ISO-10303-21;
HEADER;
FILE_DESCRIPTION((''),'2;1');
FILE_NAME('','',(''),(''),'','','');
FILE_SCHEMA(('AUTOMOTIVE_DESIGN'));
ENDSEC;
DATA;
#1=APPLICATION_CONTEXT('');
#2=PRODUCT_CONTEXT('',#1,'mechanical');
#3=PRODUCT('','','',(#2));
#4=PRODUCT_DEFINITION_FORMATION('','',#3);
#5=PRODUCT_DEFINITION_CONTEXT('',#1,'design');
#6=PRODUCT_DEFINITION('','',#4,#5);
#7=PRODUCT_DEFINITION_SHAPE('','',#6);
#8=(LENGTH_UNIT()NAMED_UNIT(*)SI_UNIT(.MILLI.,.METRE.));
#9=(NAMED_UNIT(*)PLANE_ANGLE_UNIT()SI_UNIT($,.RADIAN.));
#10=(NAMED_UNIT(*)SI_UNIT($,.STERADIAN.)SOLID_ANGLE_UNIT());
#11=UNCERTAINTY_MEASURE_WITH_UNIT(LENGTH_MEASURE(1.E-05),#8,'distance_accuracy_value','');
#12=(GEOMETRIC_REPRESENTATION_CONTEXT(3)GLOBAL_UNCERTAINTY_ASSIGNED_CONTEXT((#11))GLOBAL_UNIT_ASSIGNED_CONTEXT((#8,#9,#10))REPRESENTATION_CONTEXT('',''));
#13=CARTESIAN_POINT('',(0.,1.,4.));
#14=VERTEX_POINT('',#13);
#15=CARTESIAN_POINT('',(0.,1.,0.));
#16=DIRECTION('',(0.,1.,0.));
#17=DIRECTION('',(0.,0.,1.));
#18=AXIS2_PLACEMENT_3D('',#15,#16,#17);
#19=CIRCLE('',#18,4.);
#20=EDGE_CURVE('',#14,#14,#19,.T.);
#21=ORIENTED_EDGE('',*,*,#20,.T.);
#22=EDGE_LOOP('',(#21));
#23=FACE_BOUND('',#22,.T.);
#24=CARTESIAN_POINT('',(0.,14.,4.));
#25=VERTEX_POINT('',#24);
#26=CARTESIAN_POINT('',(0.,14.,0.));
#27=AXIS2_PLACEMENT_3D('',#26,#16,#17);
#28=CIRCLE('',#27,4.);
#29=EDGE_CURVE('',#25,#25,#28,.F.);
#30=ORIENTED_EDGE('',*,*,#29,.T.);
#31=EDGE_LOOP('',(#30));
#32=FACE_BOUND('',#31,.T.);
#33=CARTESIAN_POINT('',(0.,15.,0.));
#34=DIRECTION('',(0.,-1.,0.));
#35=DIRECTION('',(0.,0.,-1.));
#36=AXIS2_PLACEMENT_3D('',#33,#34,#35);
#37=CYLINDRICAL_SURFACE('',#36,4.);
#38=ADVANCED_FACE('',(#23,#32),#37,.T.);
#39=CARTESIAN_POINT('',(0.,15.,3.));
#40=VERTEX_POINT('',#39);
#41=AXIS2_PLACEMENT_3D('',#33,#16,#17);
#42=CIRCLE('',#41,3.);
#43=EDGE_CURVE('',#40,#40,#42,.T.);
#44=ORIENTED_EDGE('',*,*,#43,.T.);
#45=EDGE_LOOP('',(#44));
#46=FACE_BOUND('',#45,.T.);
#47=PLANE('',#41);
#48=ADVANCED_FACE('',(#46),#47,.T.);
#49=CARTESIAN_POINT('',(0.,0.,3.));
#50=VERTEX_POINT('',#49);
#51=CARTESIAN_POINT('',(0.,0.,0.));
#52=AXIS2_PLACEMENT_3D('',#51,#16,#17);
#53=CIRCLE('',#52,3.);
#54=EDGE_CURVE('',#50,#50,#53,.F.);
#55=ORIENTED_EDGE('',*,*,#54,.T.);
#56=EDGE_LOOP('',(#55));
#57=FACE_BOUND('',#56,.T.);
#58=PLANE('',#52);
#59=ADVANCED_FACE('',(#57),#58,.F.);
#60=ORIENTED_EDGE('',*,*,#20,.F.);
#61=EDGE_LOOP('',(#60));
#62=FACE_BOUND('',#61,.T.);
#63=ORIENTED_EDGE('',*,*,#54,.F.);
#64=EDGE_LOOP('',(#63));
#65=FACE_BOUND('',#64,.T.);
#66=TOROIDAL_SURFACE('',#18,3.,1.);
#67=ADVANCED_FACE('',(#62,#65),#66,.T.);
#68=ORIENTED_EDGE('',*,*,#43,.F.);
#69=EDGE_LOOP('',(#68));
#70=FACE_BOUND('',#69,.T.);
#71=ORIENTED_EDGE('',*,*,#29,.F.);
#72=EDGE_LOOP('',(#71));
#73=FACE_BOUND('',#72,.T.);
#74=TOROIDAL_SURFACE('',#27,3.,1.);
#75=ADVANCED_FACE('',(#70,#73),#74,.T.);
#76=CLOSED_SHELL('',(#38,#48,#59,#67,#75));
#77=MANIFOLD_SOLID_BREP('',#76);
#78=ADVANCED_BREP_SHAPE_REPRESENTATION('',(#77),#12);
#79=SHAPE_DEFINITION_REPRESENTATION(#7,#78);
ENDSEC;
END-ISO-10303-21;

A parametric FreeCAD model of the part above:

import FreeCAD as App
import Part
import Sketcher
Q = App.Units.Quantity


def edges_at(feature, points):
    """Names of the edges that pass closest to the given points."""
    edges = feature.Shape.Edges
    near = lambda p: min(range(len(edges)), key=lambda i: edges[i].distToShape(Part.Vertex(*p))[0])
    return sorted({f"Edge{near(p) + 1}" for p in points})

doc = App.newDocument("Part")
body = doc.addObject("PartDesign::Body", "Body")

# Sketch on XZ plane
sketch1 = body.newObject("Sketcher::SketchObject", "Sketch")
sketch1.AttachmentSupport = (doc.getObject("XZ_Plane"), [""])
sketch1.MapMode = "FlatFace"
sketch1.addGeometry(Part.Circle(App.Vector(0, 0, 0), App.Vector(0, 0, 1), 4), False)
sketch1.addConstraint(Sketcher.Constraint("Coincident", 0, 3, -1, 1))
sketch1.addConstraint(Sketcher.Constraint("Diameter", 0, Q("8 mm")))
pad1 = body.newObject("PartDesign::Pad", "Pad")
pad1.Profile = sketch1
pad1.Length = 15
pad1.Reversed = True
doc.recompute()

fillet = body.newObject("PartDesign::Fillet", "Fillet")
fillet.Base = (pad1, edges_at(pad1, [(-4, 0, 0), (-4, 15, 0)]))
fillet.Radius = 1

doc.recompute()
